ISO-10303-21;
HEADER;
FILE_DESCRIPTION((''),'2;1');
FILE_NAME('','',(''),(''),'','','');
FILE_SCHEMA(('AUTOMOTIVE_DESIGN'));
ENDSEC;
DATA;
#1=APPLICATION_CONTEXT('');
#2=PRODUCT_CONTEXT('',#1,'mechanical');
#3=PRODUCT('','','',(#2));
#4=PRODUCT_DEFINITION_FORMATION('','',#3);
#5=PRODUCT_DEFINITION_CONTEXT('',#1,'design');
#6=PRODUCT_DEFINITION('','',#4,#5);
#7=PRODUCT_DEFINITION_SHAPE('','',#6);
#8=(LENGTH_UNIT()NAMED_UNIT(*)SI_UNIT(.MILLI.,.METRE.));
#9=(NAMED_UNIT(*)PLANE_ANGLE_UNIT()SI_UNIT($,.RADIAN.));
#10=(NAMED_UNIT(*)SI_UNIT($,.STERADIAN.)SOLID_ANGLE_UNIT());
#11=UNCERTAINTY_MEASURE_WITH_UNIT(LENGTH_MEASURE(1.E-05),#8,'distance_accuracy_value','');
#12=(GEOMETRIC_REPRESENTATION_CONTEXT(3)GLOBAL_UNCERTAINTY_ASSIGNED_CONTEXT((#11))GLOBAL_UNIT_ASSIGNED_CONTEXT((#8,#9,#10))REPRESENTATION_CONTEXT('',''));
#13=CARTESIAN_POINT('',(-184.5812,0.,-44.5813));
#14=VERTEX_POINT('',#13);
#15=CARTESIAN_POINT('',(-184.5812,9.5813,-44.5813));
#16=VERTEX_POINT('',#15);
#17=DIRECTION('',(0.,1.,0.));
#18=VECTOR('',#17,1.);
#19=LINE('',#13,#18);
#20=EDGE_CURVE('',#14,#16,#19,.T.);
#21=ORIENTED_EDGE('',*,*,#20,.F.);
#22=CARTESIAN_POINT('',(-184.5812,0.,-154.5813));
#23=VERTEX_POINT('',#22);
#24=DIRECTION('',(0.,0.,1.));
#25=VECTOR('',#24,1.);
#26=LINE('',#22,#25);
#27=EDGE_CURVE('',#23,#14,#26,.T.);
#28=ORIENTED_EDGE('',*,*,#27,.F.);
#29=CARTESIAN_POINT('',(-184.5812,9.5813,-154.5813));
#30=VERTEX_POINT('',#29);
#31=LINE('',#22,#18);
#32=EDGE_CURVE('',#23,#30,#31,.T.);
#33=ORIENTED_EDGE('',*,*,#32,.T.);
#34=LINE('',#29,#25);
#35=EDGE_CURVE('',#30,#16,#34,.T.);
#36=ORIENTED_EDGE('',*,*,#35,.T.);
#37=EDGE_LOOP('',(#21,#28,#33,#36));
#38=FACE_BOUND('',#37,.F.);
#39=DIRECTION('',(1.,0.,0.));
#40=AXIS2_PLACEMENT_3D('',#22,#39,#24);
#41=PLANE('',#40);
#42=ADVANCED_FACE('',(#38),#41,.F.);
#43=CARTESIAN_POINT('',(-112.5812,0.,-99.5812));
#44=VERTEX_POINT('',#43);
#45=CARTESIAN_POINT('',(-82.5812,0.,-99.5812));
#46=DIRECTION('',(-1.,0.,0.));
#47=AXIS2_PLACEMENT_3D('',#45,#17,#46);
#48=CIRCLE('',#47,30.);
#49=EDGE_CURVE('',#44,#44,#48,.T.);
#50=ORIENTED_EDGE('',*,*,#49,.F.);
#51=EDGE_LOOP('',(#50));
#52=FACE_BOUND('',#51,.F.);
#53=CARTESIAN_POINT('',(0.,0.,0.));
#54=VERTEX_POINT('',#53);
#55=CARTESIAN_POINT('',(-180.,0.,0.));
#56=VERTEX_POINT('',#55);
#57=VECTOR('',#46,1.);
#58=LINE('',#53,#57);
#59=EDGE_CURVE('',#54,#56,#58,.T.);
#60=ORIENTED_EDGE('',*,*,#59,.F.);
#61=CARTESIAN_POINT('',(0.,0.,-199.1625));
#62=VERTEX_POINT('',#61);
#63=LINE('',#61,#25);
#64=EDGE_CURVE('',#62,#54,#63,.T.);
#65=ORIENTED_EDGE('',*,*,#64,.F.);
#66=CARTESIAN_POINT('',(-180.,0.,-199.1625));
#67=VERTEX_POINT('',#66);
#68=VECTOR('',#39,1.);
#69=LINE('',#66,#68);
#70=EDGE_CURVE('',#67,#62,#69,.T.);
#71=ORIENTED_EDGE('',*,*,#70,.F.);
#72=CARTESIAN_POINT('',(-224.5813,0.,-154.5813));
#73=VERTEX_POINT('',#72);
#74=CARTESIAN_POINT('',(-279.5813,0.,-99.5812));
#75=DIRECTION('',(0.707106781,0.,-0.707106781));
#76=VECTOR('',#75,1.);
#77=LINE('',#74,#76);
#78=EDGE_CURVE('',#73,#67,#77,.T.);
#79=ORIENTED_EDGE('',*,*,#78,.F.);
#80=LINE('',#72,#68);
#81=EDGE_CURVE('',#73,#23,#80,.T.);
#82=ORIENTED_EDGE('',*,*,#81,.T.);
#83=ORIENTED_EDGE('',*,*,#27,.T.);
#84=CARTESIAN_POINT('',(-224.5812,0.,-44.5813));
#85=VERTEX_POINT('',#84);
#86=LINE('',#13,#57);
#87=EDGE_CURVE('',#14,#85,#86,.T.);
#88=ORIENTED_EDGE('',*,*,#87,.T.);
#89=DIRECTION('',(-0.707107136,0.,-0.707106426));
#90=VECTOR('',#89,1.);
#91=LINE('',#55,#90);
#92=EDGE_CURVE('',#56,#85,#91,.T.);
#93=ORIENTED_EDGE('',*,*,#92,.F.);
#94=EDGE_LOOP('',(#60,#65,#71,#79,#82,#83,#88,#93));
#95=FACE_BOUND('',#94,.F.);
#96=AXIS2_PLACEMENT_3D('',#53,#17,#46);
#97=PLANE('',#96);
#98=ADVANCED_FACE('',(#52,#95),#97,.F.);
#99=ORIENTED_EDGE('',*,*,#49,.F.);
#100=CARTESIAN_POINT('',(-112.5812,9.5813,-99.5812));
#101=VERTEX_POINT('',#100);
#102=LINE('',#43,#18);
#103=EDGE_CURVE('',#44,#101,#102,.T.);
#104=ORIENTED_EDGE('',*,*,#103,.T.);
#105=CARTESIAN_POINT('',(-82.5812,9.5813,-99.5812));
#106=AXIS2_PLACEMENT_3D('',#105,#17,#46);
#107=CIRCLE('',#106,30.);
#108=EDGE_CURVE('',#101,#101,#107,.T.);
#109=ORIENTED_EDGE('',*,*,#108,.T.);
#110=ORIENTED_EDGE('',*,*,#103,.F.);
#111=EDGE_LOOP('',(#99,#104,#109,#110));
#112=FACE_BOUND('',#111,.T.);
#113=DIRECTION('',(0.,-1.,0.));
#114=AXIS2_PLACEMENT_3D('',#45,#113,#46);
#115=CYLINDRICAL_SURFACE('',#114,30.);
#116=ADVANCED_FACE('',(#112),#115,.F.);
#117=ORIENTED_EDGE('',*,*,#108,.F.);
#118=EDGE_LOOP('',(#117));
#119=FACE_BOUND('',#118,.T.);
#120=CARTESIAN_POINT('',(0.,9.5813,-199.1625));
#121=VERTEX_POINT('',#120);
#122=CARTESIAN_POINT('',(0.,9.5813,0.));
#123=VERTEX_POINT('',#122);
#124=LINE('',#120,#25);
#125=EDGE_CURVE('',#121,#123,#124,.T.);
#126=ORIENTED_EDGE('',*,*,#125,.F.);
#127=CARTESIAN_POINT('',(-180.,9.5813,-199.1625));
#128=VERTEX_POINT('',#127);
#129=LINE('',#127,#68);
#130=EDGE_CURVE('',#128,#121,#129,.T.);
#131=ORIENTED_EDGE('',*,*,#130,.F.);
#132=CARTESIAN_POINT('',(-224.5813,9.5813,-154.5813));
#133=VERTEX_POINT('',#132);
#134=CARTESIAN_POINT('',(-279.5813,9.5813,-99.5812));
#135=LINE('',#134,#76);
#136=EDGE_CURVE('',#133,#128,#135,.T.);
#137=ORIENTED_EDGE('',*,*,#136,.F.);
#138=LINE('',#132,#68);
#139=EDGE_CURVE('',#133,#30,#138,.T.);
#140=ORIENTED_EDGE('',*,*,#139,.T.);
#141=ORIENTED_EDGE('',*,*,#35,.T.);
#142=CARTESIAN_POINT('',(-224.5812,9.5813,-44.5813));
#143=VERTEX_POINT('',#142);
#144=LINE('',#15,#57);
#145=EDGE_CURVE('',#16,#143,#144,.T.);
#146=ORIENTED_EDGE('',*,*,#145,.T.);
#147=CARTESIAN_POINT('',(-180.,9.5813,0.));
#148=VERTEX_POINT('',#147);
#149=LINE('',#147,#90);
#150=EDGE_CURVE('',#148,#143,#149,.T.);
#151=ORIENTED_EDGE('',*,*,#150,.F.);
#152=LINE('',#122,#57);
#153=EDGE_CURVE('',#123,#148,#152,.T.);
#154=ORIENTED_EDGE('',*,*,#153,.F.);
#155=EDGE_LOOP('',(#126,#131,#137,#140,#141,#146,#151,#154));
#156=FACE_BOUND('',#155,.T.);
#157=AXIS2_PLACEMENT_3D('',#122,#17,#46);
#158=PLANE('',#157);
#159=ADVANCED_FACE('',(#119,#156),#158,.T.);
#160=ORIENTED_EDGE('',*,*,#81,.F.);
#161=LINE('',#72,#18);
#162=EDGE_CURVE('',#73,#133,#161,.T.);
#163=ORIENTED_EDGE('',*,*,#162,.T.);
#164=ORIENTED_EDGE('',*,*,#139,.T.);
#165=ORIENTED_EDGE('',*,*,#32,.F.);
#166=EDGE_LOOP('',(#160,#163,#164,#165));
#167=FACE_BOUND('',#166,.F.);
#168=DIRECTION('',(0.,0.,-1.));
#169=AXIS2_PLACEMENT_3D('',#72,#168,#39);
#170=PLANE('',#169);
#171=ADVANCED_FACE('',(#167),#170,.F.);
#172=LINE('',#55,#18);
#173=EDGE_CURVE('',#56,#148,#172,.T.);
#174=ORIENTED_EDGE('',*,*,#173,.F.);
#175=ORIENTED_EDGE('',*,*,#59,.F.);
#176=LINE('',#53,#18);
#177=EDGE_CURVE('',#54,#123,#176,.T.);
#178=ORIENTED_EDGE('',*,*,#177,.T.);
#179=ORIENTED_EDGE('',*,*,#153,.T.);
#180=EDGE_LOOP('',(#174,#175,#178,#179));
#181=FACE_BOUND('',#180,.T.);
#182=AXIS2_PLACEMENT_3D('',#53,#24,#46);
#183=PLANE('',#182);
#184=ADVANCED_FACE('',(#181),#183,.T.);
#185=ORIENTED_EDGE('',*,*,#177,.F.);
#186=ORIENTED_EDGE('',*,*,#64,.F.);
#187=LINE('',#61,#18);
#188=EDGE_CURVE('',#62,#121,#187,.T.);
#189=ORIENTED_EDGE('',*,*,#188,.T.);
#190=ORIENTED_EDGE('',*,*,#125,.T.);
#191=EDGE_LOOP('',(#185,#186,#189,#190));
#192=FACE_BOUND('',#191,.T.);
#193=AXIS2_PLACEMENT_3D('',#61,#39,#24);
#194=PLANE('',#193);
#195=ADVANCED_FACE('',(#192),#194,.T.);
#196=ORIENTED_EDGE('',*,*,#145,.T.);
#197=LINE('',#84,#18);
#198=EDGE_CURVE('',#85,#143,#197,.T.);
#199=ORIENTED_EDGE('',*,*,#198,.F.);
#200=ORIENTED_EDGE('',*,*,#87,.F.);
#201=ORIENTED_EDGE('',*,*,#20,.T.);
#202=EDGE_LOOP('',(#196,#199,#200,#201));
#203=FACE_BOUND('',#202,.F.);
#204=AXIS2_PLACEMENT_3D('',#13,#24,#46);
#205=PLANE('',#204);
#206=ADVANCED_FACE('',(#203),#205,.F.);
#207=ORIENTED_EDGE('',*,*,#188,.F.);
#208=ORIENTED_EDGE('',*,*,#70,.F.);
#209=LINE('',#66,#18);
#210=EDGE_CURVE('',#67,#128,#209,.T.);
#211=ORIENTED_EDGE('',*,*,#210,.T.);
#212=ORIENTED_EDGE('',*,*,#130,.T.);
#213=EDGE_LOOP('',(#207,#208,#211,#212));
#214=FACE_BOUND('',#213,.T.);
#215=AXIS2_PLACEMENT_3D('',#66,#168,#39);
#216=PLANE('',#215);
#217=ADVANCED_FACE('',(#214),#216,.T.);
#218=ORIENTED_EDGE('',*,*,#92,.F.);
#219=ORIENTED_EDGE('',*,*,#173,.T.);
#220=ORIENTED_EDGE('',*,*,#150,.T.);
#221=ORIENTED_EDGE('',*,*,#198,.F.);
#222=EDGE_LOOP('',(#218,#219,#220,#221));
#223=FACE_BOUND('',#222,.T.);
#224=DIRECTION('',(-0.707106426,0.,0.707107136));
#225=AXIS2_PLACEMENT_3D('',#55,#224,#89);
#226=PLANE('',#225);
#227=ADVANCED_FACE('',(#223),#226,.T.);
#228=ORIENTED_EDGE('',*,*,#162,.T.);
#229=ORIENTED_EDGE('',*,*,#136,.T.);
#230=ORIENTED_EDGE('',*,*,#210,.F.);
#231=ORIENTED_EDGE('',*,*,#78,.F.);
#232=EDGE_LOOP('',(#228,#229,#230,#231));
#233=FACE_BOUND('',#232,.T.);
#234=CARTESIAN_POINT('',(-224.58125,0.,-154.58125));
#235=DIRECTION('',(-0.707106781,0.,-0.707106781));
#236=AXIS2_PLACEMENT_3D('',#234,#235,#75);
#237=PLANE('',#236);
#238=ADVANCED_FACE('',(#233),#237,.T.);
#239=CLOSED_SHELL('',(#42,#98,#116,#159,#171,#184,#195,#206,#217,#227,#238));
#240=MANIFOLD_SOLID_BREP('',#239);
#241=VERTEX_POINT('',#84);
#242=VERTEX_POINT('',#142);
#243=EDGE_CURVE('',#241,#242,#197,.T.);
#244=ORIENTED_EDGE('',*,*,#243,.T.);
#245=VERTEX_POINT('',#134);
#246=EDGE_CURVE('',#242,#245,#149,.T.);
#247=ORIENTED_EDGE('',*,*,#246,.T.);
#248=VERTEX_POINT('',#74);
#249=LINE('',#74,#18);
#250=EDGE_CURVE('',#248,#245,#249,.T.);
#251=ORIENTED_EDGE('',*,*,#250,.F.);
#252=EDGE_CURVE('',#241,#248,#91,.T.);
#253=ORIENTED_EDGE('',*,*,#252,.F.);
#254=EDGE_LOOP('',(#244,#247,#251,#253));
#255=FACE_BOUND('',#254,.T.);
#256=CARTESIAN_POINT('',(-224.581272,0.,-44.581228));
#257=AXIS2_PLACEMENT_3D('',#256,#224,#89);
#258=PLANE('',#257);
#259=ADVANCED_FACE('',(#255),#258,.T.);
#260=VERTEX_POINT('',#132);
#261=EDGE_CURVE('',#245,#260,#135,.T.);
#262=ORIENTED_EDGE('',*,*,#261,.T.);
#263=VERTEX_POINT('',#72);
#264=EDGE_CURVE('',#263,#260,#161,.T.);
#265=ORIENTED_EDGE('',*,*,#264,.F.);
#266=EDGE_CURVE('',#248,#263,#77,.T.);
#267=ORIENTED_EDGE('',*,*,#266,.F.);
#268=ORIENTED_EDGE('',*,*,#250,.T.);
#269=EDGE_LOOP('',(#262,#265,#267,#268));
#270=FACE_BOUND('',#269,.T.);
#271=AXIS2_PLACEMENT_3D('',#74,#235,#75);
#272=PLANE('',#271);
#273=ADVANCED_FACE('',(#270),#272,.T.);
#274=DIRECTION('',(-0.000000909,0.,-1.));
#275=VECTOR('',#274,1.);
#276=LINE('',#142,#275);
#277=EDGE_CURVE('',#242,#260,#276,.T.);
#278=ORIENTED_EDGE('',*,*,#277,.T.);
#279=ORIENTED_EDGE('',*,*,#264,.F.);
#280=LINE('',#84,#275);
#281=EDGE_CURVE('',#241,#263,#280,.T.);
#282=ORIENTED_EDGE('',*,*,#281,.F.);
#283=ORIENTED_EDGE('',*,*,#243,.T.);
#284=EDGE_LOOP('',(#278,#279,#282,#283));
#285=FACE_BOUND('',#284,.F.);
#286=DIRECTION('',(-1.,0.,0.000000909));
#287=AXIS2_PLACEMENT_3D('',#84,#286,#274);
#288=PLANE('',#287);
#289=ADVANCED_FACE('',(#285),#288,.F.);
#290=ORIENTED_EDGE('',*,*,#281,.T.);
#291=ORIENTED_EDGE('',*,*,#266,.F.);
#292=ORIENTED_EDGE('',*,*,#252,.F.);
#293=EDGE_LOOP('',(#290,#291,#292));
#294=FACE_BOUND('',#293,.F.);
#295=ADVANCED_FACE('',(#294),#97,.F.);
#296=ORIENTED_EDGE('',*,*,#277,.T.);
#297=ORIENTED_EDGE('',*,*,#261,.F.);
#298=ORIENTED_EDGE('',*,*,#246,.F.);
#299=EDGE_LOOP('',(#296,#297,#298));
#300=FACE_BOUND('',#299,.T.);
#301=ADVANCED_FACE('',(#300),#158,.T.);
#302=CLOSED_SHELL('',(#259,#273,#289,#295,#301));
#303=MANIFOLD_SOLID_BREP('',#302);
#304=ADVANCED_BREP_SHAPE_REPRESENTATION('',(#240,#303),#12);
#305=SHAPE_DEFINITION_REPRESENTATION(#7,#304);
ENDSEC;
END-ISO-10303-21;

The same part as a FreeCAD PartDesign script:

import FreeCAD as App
import Part
import Sketcher
from FreeCAD import Vector

doc = App.newDocument("Part")
body = doc.addObject("PartDesign::Body", "Body")
body.AllowCompound = True

# Sketch on XZ plane
sketch1 = doc.addObject("Sketcher::SketchObject", "Sketch")
body.addObject(sketch1)
sketch1.AttachmentSupport = (doc.XZ_Plane, [""])
sketch1.MapMode = "FlatFace"
sketch1.addGeometry(Part.LineSegment(Vector(-180, 0, 0), Vector(0, 0, 0)), False)
sketch1.addGeometry(Part.LineSegment(Vector(0, 0, 0), Vector(0, -199.1625, 0)), False)
sketch1.addGeometry(Part.LineSegment(Vector(0, -199.1625, 0), Vector(-180, -199.1625, 0)), False)
sketch1.addGeometry(Part.LineSegment(Vector(-180, -199.1625, 0), Vector(-224.58125, -154.58125, 0)), False)
sketch1.addGeometry(Part.LineSegment(Vector(-224.5813, -154.5813, 0), Vector(-184.5812, -154.5813, 0)), False)
sketch1.addGeometry(Part.LineSegment(Vector(-184.5812, -154.5813, 0), Vector(-184.5812, -44.5813, 0)), False)
sketch1.addGeometry(Part.LineSegment(Vector(-184.5812, -44.5813, 0), Vector(-224.5812, -44.5813, 0)), False)
sketch1.addGeometry(Part.LineSegment(Vector(-224.581272, -44.581228, 0), Vector(-180, 0, 0)), False)
sketch1.addGeometry(Part.Circle(Vector(-82.5812, -99.5812, 0), Vector(0, 0, 1), 30), False)
sketch1.addGeometry(Part.LineSegment(Vector(-279.5813, -99.5812, 0), Vector(-224.581272, -44.581228, 0)), False)
sketch1.addGeometry(Part.LineSegment(Vector(-224.5812, -44.5813, 0), Vector(-224.5813, -154.5813, 0)), False)
sketch1.addGeometry(Part.LineSegment(Vector(-224.58125, -154.58125, 0), Vector(-279.5813, -99.5812, 0)), False)
sketch1.addConstraint(Sketcher.Constraint("Coincident", 0, 2, 1, 1))
sketch1.addConstraint(Sketcher.Constraint("Coincident", 1, 2, 2, 1))
sketch1.addConstraint(Sketcher.Constraint("Coincident", 2, 2, 3, 1))
sketch1.addConstraint(Sketcher.Constraint("Coincident", 3, 2, 4, 1))
sketch1.addConstraint(Sketcher.Constraint("Coincident", 4, 2, 5, 1))
sketch1.addConstraint(Sketcher.Constraint("Coincident", 5, 2, 6, 1))
sketch1.addConstraint(Sketcher.Constraint("Coincident", 6, 2, 7, 1))
sketch1.addConstraint(Sketcher.Constraint("Coincident", 7, 2, 0, 1))
sketch1.addConstraint(Sketcher.Constraint("Coincident", 9, 2, 10, 1))
sketch1.addConstraint(Sketcher.Constraint("Coincident", 10, 2, 11, 1))
sketch1.addConstraint(Sketcher.Constraint("Coincident", 11, 2, 9, 1))
sketch1.addConstraint(Sketcher.Constraint("Horizontal", 0))
sketch1.addConstraint(Sketcher.Constraint("Vertical", 1))
sketch1.addConstraint(Sketcher.Constraint("Horizontal", 2))
sketch1.addConstraint(Sketcher.Constraint("Horizontal", 4))
sketch1.addConstraint(Sketcher.Constraint("Vertical", 5))
sketch1.addConstraint(Sketcher.Constraint("Horizontal", 6))
sketch1.addConstraint(Sketcher.Constraint("Vertical", 10))
sketch1.addConstraint(Sketcher.Constraint("Coincident", 0, 2, -1, 1))
sketch1.addConstraint(Sketcher.Constraint("Coincident", 9, 2, 6, 2))
sketch1.addConstraint(Sketcher.Constraint("Coincident", 10, 2, 3, 2))
sketch1.addConstraint(Sketcher.Constraint("Perpendicular", 3, 7))
sketch1.addConstraint(Sketcher.Constraint("Parallel", 7, 9))
sketch1.addConstraint(Sketcher.Constraint("Perpendicular", 9, 11))
sketch1.addConstraint(Sketcher.Constraint("Horizontal", 8, 3, 11, 2))
sketch1.addConstraint(Sketcher.Constraint("Vertical", 2, 2, 7, 2))
sketch1.addConstraint(Sketcher.Constraint("Equal", 3, 7))
sketch1.addConstraint(Sketcher.Constraint("Diameter", 8, 60.0))
sketch1.addConstraint(Sketcher.Constraint("DistanceX", 0, 1, 0, 2, 180.0))
sketch1.addConstraint(Sketcher.Constraint("DistanceX", 4, 1, 4, 2, 40.0))
sketch1.addConstraint(Sketcher.Constraint("DistanceY", 5, 1, 5, 2, 110.0))
sketch1.addConstraint(Sketcher.Constraint("DistanceY", 1, 2, 1, 1, 199.1625))
sketch1.addConstraint(Sketcher.Constraint("DistanceX", 3, 2, 8, 3, 142.0))
pad1 = doc.addObject("PartDesign::Pad", "Pad")
body.addObject(pad1)
pad1.Profile = sketch1
pad1.Length = 9.5813
pad1.Reversed = True

doc.recompute()
